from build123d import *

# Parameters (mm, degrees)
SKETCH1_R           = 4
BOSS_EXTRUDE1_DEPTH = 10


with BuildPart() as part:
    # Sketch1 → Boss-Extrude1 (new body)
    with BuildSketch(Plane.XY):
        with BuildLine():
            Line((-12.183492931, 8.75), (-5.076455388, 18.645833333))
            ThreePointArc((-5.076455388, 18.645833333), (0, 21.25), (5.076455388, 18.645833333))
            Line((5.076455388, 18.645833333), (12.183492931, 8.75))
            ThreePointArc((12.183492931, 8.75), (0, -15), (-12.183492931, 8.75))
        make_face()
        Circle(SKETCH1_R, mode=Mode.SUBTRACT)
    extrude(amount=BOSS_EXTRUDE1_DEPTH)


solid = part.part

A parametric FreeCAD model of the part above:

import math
import FreeCAD as App
import Part
import Sketcher

V = App.Vector
Q = App.Units.Quantity

doc = App.newDocument("Part")
body = doc.addObject("PartDesign::Body", "Body")

# Sketch on XY plane
sketch1 = doc.addObject("Sketcher::SketchObject", "Sketch")
body.addObject(sketch1)
sketch1.AttachmentSupport = (doc.XY_Plane, [""])
sketch1.MapMode = "FlatFace"
sketch1.addGeometry([
    Part.LineSegment(V(-5.076455, 18.645833, 0), V(-12.183493, 8.75, 0)),  # 0
    Part.ArcOfCircle(Part.Circle(V(0, 0, 0), V(0, 0, 1), 15), math.radians(144.314665), math.radians(395.685335)),  # 1
    Part.LineSegment(V(12.183493, 8.75, 0), V(5.076455, 18.645833, 0)),  # 2
    Part.ArcOfCircle(Part.Circle(V(0, 15, 0), V(0, 0, 1), 6.25), math.radians(35.685335), math.radians(144.314665)),  # 3
    Part.Circle(V(0, 0, 0), V(0, 0, 1), 4),  # 4
], False)
sketch1.addConstraint([
    Sketcher.Constraint("Tangent", 0, 2, 1, 1),
    Sketcher.Constraint("Tangent", 1, 2, 2, 1),
    Sketcher.Constraint("Tangent", 2, 2, 3, 1),
    Sketcher.Constraint("Tangent", 3, 2, 0, 1),
    Sketcher.Constraint("Coincident", 1, 3, -1, 1),
    Sketcher.Constraint("Coincident", 4, 3, -1, 1),
    Sketcher.Constraint("PointOnObject", 3, 3, -2),
    Sketcher.Constraint("Diameter", 4, Q("8 mm")),
    Sketcher.Constraint("Radius", 1, Q("15 mm")),
    Sketcher.Constraint("Radius", 3, Q("6.25 mm")),
    Sketcher.Constraint("DistanceY", -1, 1, 3, 3, Q("15 mm")),
])
pad1 = doc.addObject("PartDesign::Pad", "Pad")
body.addObject(pad1)
pad1.Profile = sketch1
pad1.Length = 10

doc.recompute()
